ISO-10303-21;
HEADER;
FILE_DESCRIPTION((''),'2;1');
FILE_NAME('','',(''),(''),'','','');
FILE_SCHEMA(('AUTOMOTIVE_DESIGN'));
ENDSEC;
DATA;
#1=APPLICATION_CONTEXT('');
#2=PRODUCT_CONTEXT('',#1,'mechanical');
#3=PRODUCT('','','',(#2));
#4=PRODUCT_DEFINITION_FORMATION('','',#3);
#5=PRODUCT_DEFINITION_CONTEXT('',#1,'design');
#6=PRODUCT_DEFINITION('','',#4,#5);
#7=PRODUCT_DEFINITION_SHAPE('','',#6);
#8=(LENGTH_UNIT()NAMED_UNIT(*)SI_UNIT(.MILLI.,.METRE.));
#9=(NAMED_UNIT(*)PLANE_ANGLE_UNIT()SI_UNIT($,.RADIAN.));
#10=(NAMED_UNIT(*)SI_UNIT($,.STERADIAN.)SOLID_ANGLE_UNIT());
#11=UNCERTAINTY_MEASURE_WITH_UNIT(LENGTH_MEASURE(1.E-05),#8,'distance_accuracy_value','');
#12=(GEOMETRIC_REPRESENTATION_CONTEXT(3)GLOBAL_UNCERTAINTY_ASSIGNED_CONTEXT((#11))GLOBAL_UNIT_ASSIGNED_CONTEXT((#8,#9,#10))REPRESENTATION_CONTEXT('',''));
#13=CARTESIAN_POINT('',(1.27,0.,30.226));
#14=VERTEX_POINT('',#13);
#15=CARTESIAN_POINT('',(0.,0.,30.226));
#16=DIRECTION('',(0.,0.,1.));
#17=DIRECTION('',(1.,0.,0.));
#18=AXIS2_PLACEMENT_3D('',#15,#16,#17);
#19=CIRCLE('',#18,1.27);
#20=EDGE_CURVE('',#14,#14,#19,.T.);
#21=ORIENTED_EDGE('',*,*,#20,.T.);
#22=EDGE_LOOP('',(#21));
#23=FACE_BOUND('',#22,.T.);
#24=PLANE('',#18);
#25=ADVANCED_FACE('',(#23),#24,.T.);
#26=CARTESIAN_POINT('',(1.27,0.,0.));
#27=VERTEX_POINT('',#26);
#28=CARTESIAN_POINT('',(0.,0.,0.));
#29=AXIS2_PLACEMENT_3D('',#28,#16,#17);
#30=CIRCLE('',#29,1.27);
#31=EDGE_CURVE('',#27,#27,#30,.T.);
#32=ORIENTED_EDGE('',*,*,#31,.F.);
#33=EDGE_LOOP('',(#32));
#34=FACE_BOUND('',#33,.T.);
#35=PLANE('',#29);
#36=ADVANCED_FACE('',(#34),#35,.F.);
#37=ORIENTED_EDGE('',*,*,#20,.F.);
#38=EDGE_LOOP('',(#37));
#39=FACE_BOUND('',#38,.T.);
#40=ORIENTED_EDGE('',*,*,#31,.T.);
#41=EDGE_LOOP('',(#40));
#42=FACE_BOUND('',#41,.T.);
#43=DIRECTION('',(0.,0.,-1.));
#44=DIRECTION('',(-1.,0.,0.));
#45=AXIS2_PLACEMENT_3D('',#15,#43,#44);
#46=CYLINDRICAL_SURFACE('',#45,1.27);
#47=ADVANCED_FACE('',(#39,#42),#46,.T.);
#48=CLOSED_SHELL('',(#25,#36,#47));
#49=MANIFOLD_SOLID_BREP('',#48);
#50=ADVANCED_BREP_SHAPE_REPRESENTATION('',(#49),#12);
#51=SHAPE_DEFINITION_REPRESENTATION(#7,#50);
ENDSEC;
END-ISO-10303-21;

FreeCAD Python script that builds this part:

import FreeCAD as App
import Part
import Sketcher
from FreeCAD import Vector
Q = App.Units.Quantity

doc = App.newDocument("Part")
body = doc.addObject("PartDesign::Body", "Body")

# Sketch on XY plane
sketch1 = body.newObject("Sketcher::SketchObject", "Sketch")
sketch1.AttachmentSupport = (doc.getObject("XY_Plane"), [""])
sketch1.MapMode = "FlatFace"
sketch1.addGeometry(Part.Circle(Vector(0, 0, 0), Vector(0, 0, 1), 1.3), False)
sketch1.addConstraint([
    Sketcher.Constraint("Coincident", 0, 3, -1, 1),
    Sketcher.Constraint("Diameter", 0, Q("0.1 in")),
])
pad1 = body.newObject("PartDesign::Pad", "Pad")
pad1.Profile = sketch1
pad1.Length = Q("1.19 in")

doc.recompute()
